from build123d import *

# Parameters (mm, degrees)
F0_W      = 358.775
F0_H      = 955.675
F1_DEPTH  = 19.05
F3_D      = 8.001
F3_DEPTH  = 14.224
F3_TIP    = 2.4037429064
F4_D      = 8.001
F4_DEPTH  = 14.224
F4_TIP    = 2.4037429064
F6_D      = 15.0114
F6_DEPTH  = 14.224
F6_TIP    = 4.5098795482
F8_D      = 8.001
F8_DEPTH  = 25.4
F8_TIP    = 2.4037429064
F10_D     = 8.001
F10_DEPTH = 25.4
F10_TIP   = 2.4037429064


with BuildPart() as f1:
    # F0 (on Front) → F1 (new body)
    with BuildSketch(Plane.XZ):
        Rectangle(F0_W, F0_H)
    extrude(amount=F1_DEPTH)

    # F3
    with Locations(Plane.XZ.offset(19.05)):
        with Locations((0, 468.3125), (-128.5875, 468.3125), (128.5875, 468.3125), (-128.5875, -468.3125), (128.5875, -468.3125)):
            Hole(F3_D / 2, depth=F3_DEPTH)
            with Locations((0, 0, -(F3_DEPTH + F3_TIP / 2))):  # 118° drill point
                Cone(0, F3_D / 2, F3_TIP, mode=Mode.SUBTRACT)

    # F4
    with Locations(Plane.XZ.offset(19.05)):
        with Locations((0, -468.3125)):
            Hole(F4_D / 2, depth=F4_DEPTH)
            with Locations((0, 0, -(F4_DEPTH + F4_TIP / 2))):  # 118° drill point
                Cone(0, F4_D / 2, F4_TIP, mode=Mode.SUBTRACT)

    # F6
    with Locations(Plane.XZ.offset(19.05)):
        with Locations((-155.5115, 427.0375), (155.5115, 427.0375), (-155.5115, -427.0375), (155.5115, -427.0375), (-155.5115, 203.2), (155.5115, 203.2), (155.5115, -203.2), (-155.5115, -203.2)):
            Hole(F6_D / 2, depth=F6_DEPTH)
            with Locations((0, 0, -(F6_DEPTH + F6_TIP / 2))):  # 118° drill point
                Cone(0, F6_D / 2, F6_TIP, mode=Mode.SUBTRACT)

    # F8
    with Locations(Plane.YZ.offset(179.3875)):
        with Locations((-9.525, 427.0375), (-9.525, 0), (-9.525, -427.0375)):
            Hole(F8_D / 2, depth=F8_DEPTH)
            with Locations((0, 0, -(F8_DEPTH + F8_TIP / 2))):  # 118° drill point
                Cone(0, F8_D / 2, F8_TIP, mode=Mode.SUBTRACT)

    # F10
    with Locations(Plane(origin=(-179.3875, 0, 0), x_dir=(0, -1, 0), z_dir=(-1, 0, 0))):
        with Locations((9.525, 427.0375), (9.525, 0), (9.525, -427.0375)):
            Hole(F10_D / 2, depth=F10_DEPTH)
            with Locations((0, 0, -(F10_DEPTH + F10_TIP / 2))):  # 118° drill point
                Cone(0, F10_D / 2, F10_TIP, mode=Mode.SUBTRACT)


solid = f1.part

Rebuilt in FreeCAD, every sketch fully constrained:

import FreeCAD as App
import Part
import Sketcher
from FreeCAD import Vector
Q = App.Units.Quantity


def add_polygon(sketch, points):
    """Adds a closed chain of lines whose ends are joined by coincident constraints."""
    first, n = sketch.GeometryCount, len(points)
    for a, b in zip(points, points[1:] + points[:1]):
        sketch.addGeometry(Part.LineSegment(App.Vector(*a, 0), App.Vector(*b, 0)), False)
    for i in range(n):
        sketch.addConstraint(Sketcher.Constraint("Coincident", first + i, 2, first + (i + 1) % n, 1))

doc = App.newDocument("Part")
body = doc.addObject("PartDesign::Body", "Body")

# Sketch on XZ plane
sketch1 = doc.addObject("Sketcher::SketchObject", "Sketch")
body.addObject(sketch1)
sketch1.AttachmentSupport = (doc.XZ_Plane, [""])
sketch1.MapMode = "FlatFace"
add_polygon(sketch1, [(-179, 478), (-179, -478), (179, -478), (179, 478)])  # lines 0-3
sketch1.addConstraint([
    Sketcher.Constraint("Vertical", 0),
    Sketcher.Constraint("Horizontal", 1),
    Sketcher.Constraint("Vertical", 2),
    Sketcher.Constraint("Horizontal", 3),
    Sketcher.Constraint("Symmetric", 0, 2, 2, 2, -1, 1),
    Sketcher.Constraint("DistanceX", 1, 1, 1, 2, Q("14.125 in")),
    Sketcher.Constraint("DistanceY", 0, 2, 0, 1, Q("37.625 in")),
])
pad1 = doc.addObject("PartDesign::Pad", "Pad")
body.addObject(pad1)
pad1.Profile = sketch1
pad1.Length = Q("0.75 in")

# Sketch on XZ plane
sketch2 = doc.addObject("Sketcher::SketchObject", "Sketch001")
body.addObject(sketch2)
sketch2.AttachmentSupport = (doc.XZ_Plane, [""])
sketch2.MapMode = "FlatFace"
sketch2.AttachmentOffset = App.Placement(Vector(0, 0, 0.75 * 25.4), App.Rotation())
sketch2.addGeometry([
    Part.Circle(Vector(0, 468.3, 0), Vector(0, 0, 1), 4),  # 0
    Part.Circle(Vector(-128.6, 468.3, 0), Vector(0, 0, 1), 4),  # 1
    Part.Circle(Vector(128.6, 468.3, 0), Vector(0, 0, 1), 4),  # 2
    Part.Circle(Vector(-128.6, -468.3, 0), Vector(0, 0, 1), 4),  # 3
    Part.Circle(Vector(128.6, -468.3, 0), Vector(0, 0, 1), 4),  # 4
], False)
sketch2.addConstraint([
    Sketcher.Constraint("Equal", 0, 1),
    Sketcher.Constraint("Equal", 1, 2),
    Sketcher.Constraint("Equal", 2, 3),
    Sketcher.Constraint("Equal", 3, 4),
    Sketcher.Constraint("Symmetric", 2, 3, 3, 3, -1, 1),
    Sketcher.Constraint("Symmetric", 1, 3, 4, 3, -1, 1),
    Sketcher.Constraint("Symmetric", 1, 3, 2, 3, -2),
    Sketcher.Constraint("PointOnObject", 0, 3, -2),
    Sketcher.Constraint("Horizontal", 0, 3, 1, 3),
    Sketcher.Constraint("Diameter", 0, Q("0.315 in")),
    Sketcher.Constraint("DistanceY", -1, 1, 0, 3, Q("18.4375 in")),
    Sketcher.Constraint("DistanceX", 1, 3, -1, 1, Q("5.0625 in")),
])
doc.recompute()
hole = doc.addObject("PartDesign::Hole", "Hole")
body.addObject(hole)
hole.Profile = sketch2
hole.ThreadType = "None"
hole.Diameter = Q("0.315 in")
hole.DepthType = "Dimension"
hole.Depth = Q("0.56 in")
hole.DrillPoint = "Angled"
hole.DrillPointAngle = 118

# Sketch on XZ plane
sketch3 = doc.addObject("Sketcher::SketchObject", "Sketch002")
body.addObject(sketch3)
sketch3.AttachmentSupport = (doc.XZ_Plane, [""])
sketch3.MapMode = "FlatFace"
sketch3.AttachmentOffset = App.Placement(Vector(0, 0, 0.75 * 25.4), App.Rotation())
sketch3.addGeometry(Part.Circle(Vector(0, -468.3, 0), Vector(0, 0, 1), 4), False)
sketch3.addConstraint([
    Sketcher.Constraint("PointOnObject", 0, 3, -2),
    Sketcher.Constraint("Diameter", 0, Q("0.315 in")),
    Sketcher.Constraint("DistanceY", 0, 3, -1, 1, Q("18.4375 in")),
])
doc.recompute()
hole2 = doc.addObject("PartDesign::Hole", "Hole001")
body.addObject(hole2)
hole2.Profile = sketch3
hole2.ThreadType = "None"
hole2.Diameter = Q("0.315 in")
hole2.DepthType = "Dimension"
hole2.Depth = Q("0.56 in")
hole2.DrillPoint = "Angled"
hole2.DrillPointAngle = 118

# Sketch on XZ plane
sketch4 = doc.addObject("Sketcher::SketchObject", "Sketch003")
body.addObject(sketch4)
sketch4.AttachmentSupport = (doc.XZ_Plane, [""])
sketch4.MapMode = "FlatFace"
sketch4.AttachmentOffset = App.Placement(Vector(0, 0, 0.75 * 25.4), App.Rotation())
sketch4.addGeometry([
    Part.Circle(Vector(-156, 427, 0), Vector(0, 0, 1), 8),  # 0
    Part.Circle(Vector(156, 427, 0), Vector(0, 0, 1), 8),  # 1
    Part.Circle(Vector(-156, -427, 0), Vector(0, 0, 1), 8),  # 2
    Part.Circle(Vector(156, -427, 0), Vector(0, 0, 1), 8),  # 3
    Part.Circle(Vector(-156, 203, 0), Vector(0, 0, 1), 8),  # 4
    Part.Circle(Vector(156, 203, 0), Vector(0, 0, 1), 8),  # 5
    Part.Circle(Vector(156, -203, 0), Vector(0, 0, 1), 8),  # 6
    Part.Circle(Vector(-156, -203, 0), Vector(0, 0, 1), 8),  # 7
], False)
sketch4.addConstraint([
    Sketcher.Constraint("Equal", 0, 1),
    Sketcher.Constraint("Equal", 1, 2),
    Sketcher.Constraint("Equal", 2, 3),
    Sketcher.Constraint("Equal", 3, 4),
    Sketcher.Constraint("Equal", 4, 5),
    Sketcher.Constraint("Equal", 5, 6),
    Sketcher.Constraint("Equal", 6, 7),
    Sketcher.Constraint("Symmetric", 1, 3, 2, 3, -1, 1),
    Sketcher.Constraint("Symmetric", 0, 3, 3, 3, -1, 1),
    Sketcher.Constraint("Symmetric", 4, 3, 6, 3, -1, 1),
    Sketcher.Constraint("Symmetric", 5, 3, 7, 3, -1, 1),
    Sketcher.Constraint("Symmetric", 0, 3, 1, 3, -2),
    Sketcher.Constraint("Symmetric", 4, 3, 5, 3, -2),
    Sketcher.Constraint("Vertical", 2, 3, 4, 3),
    Sketcher.Constraint("Diameter", 0, Q("0.591 in")),
    Sketcher.Constraint("DistanceY", -1, 1, 4, 3, Q("8 in")),
    Sketcher.Constraint("DistanceY", -1, 1, 0, 3, Q("16.8125 in")),
    Sketcher.Constraint("DistanceX", 0, 3, 1, 3, Q("12.245 in")),
])
doc.recompute()
hole3 = doc.addObject("PartDesign::Hole", "Hole002")
body.addObject(hole3)
hole3.Profile = sketch4
hole3.ThreadType = "None"
hole3.Diameter = Q("0.591 in")
hole3.DepthType = "Dimension"
hole3.Depth = Q("0.56 in")
hole3.DrillPoint = "Angled"
hole3.DrillPointAngle = 118

# Sketch on YZ plane
sketch5 = doc.addObject("Sketcher::SketchObject", "Sketch004")
body.addObject(sketch5)
sketch5.AttachmentSupport = (doc.YZ_Plane, [""])
sketch5.MapMode = "FlatFace"
sketch5.AttachmentOffset = App.Placement(Vector(0, 0, 7.0625 * 25.4), App.Rotation())
sketch5.addGeometry([
    Part.Circle(Vector(-9.5, 427, 0), Vector(0, 0, 1), 4),
    Part.Circle(Vector(-9.5, 0, 0), Vector(0, 0, 1), 4),
    Part.Circle(Vector(-9.5, -427, 0), Vector(0, 0, 1), 4),
], False)
sketch5.addConstraint([
    Sketcher.Constraint("Equal", 0, 1),
    Sketcher.Constraint("Equal", 1, 2),
    Sketcher.Constraint("Symmetric", 0, 3, 2, 3, -1),
    Sketcher.Constraint("PointOnObject", 1, 3, -1),
    Sketcher.Constraint("Vertical", 0, 3, 1, 3),
    Sketcher.Constraint("Diameter", 0, Q("0.315 in")),
    Sketcher.Constraint("DistanceX", 0, 3, -1, 1, Q("0.375 in")),
    Sketcher.Constraint("DistanceY", -1, 1, 0, 3, Q("16.8125 in")),
])
doc.recompute()
hole4 = doc.addObject("PartDesign::Hole", "Hole003")
body.addObject(hole4)
hole4.Profile = sketch5
hole4.ThreadType = "None"
hole4.Diameter = Q("0.315 in")
hole4.DepthType = "Dimension"
hole4.Depth = Q("1 in")
hole4.DrillPoint = "Angled"
hole4.DrillPointAngle = 118

# Sketch on YZ plane
sketch6 = doc.addObject("Sketcher::SketchObject", "Sketch005")
body.addObject(sketch6)
sketch6.AttachmentSupport = (doc.YZ_Plane, [""])
sketch6.MapMode = "FlatFace"
sketch6.AttachmentOffset = App.Placement(Vector(0, 0, -7.0625 * 25.4), App.Rotation())
sketch6.addGeometry([
    Part.Circle(Vector(-9.5, 427, 0), Vector(0, 0, 1), 4),
    Part.Circle(Vector(-9.5, 0, 0), Vector(0, 0, 1), 4),
    Part.Circle(Vector(-9.5, -427, 0), Vector(0, 0, 1), 4),
], False)
sketch6.addConstraint([
    Sketcher.Constraint("Equal", 0, 1),
    Sketcher.Constraint("Equal", 1, 2),
    Sketcher.Constraint("Symmetric", 0, 3, 2, 3, -1),
    Sketcher.Constraint("PointOnObject", 1, 3, -1),
    Sketcher.Constraint("Vertical", 0, 3, 1, 3),
    Sketcher.Constraint("Diameter", 0, Q("0.315 in")),
    Sketcher.Constraint("DistanceX", 0, 3, -1, 1, Q("0.375 in")),
    Sketcher.Constraint("DistanceY", -1, 1, 0, 3, Q("16.8125 in")),
])
doc.recompute()
hole5 = doc.addObject("PartDesign::Hole", "Hole004")
body.addObject(hole5)
hole5.Profile = sketch6
hole5.ThreadType = "None"
hole5.Diameter = Q("0.315 in")
hole5.DepthType = "Dimension"
hole5.Depth = Q("1 in")
hole5.DrillPoint = "Angled"
hole5.DrillPointAngle = 118
hole5.Reversed = True

doc.recompute()
